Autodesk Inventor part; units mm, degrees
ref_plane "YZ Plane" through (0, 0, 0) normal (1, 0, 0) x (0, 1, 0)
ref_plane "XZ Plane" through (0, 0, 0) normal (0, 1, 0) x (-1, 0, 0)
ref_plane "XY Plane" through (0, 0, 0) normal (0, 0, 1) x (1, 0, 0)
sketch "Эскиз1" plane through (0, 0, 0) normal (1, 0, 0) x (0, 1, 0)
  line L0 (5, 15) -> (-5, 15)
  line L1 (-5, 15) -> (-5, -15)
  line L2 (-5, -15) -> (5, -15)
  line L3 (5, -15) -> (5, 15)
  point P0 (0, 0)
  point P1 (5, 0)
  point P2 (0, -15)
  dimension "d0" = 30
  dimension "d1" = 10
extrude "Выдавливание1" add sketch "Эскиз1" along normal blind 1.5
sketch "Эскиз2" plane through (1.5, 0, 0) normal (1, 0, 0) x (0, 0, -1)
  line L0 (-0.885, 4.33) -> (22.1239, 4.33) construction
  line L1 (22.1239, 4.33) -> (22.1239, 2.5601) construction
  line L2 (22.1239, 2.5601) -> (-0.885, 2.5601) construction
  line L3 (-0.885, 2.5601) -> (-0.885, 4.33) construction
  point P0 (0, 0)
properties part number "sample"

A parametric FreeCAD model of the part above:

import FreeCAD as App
import Part
import Sketcher


def add_polygon(sketch, points):
    """Adds a closed chain of lines whose ends are joined by coincident constraints."""
    first, n = sketch.GeometryCount, len(points)
    for a, b in zip(points, points[1:] + points[:1]):
        sketch.addGeometry(Part.LineSegment(App.Vector(*a, 0), App.Vector(*b, 0)), False)
    for i in range(n):
        sketch.addConstraint(Sketcher.Constraint("Coincident", first + i, 2, first + (i + 1) % n, 1))

doc = App.newDocument("Part")
body = doc.addObject("PartDesign::Body", "Body")

# Sketch on YZ plane
sketch1 = body.newObject("Sketcher::SketchObject", "Sketch")
sketch1.AttachmentSupport = (doc.getObject("YZ_Plane"), [""])
sketch1.MapMode = "FlatFace"
add_polygon(sketch1, [(5, -15), (5, 15), (-5, 15), (-5, -15)])  # lines 0-3
sketch1.addConstraint(Sketcher.Constraint("Vertical", 0))
sketch1.addConstraint(Sketcher.Constraint("Horizontal", 1))
sketch1.addConstraint(Sketcher.Constraint("Vertical", 2))
sketch1.addConstraint(Sketcher.Constraint("Horizontal", 3))
sketch1.addConstraint(Sketcher.Constraint("Symmetric", 0, 2, 2, 2, -1, 1))
sketch1.addConstraint(Sketcher.Constraint("DistanceX", 1, 2, 1, 1, 10.0))
sketch1.addConstraint(Sketcher.Constraint("DistanceY", 0, 1, 0, 2, 30.0))
pad1 = body.newObject("PartDesign::Pad", "Pad")
pad1.Profile = sketch1
pad1.Length = 1.5

doc.recompute()
